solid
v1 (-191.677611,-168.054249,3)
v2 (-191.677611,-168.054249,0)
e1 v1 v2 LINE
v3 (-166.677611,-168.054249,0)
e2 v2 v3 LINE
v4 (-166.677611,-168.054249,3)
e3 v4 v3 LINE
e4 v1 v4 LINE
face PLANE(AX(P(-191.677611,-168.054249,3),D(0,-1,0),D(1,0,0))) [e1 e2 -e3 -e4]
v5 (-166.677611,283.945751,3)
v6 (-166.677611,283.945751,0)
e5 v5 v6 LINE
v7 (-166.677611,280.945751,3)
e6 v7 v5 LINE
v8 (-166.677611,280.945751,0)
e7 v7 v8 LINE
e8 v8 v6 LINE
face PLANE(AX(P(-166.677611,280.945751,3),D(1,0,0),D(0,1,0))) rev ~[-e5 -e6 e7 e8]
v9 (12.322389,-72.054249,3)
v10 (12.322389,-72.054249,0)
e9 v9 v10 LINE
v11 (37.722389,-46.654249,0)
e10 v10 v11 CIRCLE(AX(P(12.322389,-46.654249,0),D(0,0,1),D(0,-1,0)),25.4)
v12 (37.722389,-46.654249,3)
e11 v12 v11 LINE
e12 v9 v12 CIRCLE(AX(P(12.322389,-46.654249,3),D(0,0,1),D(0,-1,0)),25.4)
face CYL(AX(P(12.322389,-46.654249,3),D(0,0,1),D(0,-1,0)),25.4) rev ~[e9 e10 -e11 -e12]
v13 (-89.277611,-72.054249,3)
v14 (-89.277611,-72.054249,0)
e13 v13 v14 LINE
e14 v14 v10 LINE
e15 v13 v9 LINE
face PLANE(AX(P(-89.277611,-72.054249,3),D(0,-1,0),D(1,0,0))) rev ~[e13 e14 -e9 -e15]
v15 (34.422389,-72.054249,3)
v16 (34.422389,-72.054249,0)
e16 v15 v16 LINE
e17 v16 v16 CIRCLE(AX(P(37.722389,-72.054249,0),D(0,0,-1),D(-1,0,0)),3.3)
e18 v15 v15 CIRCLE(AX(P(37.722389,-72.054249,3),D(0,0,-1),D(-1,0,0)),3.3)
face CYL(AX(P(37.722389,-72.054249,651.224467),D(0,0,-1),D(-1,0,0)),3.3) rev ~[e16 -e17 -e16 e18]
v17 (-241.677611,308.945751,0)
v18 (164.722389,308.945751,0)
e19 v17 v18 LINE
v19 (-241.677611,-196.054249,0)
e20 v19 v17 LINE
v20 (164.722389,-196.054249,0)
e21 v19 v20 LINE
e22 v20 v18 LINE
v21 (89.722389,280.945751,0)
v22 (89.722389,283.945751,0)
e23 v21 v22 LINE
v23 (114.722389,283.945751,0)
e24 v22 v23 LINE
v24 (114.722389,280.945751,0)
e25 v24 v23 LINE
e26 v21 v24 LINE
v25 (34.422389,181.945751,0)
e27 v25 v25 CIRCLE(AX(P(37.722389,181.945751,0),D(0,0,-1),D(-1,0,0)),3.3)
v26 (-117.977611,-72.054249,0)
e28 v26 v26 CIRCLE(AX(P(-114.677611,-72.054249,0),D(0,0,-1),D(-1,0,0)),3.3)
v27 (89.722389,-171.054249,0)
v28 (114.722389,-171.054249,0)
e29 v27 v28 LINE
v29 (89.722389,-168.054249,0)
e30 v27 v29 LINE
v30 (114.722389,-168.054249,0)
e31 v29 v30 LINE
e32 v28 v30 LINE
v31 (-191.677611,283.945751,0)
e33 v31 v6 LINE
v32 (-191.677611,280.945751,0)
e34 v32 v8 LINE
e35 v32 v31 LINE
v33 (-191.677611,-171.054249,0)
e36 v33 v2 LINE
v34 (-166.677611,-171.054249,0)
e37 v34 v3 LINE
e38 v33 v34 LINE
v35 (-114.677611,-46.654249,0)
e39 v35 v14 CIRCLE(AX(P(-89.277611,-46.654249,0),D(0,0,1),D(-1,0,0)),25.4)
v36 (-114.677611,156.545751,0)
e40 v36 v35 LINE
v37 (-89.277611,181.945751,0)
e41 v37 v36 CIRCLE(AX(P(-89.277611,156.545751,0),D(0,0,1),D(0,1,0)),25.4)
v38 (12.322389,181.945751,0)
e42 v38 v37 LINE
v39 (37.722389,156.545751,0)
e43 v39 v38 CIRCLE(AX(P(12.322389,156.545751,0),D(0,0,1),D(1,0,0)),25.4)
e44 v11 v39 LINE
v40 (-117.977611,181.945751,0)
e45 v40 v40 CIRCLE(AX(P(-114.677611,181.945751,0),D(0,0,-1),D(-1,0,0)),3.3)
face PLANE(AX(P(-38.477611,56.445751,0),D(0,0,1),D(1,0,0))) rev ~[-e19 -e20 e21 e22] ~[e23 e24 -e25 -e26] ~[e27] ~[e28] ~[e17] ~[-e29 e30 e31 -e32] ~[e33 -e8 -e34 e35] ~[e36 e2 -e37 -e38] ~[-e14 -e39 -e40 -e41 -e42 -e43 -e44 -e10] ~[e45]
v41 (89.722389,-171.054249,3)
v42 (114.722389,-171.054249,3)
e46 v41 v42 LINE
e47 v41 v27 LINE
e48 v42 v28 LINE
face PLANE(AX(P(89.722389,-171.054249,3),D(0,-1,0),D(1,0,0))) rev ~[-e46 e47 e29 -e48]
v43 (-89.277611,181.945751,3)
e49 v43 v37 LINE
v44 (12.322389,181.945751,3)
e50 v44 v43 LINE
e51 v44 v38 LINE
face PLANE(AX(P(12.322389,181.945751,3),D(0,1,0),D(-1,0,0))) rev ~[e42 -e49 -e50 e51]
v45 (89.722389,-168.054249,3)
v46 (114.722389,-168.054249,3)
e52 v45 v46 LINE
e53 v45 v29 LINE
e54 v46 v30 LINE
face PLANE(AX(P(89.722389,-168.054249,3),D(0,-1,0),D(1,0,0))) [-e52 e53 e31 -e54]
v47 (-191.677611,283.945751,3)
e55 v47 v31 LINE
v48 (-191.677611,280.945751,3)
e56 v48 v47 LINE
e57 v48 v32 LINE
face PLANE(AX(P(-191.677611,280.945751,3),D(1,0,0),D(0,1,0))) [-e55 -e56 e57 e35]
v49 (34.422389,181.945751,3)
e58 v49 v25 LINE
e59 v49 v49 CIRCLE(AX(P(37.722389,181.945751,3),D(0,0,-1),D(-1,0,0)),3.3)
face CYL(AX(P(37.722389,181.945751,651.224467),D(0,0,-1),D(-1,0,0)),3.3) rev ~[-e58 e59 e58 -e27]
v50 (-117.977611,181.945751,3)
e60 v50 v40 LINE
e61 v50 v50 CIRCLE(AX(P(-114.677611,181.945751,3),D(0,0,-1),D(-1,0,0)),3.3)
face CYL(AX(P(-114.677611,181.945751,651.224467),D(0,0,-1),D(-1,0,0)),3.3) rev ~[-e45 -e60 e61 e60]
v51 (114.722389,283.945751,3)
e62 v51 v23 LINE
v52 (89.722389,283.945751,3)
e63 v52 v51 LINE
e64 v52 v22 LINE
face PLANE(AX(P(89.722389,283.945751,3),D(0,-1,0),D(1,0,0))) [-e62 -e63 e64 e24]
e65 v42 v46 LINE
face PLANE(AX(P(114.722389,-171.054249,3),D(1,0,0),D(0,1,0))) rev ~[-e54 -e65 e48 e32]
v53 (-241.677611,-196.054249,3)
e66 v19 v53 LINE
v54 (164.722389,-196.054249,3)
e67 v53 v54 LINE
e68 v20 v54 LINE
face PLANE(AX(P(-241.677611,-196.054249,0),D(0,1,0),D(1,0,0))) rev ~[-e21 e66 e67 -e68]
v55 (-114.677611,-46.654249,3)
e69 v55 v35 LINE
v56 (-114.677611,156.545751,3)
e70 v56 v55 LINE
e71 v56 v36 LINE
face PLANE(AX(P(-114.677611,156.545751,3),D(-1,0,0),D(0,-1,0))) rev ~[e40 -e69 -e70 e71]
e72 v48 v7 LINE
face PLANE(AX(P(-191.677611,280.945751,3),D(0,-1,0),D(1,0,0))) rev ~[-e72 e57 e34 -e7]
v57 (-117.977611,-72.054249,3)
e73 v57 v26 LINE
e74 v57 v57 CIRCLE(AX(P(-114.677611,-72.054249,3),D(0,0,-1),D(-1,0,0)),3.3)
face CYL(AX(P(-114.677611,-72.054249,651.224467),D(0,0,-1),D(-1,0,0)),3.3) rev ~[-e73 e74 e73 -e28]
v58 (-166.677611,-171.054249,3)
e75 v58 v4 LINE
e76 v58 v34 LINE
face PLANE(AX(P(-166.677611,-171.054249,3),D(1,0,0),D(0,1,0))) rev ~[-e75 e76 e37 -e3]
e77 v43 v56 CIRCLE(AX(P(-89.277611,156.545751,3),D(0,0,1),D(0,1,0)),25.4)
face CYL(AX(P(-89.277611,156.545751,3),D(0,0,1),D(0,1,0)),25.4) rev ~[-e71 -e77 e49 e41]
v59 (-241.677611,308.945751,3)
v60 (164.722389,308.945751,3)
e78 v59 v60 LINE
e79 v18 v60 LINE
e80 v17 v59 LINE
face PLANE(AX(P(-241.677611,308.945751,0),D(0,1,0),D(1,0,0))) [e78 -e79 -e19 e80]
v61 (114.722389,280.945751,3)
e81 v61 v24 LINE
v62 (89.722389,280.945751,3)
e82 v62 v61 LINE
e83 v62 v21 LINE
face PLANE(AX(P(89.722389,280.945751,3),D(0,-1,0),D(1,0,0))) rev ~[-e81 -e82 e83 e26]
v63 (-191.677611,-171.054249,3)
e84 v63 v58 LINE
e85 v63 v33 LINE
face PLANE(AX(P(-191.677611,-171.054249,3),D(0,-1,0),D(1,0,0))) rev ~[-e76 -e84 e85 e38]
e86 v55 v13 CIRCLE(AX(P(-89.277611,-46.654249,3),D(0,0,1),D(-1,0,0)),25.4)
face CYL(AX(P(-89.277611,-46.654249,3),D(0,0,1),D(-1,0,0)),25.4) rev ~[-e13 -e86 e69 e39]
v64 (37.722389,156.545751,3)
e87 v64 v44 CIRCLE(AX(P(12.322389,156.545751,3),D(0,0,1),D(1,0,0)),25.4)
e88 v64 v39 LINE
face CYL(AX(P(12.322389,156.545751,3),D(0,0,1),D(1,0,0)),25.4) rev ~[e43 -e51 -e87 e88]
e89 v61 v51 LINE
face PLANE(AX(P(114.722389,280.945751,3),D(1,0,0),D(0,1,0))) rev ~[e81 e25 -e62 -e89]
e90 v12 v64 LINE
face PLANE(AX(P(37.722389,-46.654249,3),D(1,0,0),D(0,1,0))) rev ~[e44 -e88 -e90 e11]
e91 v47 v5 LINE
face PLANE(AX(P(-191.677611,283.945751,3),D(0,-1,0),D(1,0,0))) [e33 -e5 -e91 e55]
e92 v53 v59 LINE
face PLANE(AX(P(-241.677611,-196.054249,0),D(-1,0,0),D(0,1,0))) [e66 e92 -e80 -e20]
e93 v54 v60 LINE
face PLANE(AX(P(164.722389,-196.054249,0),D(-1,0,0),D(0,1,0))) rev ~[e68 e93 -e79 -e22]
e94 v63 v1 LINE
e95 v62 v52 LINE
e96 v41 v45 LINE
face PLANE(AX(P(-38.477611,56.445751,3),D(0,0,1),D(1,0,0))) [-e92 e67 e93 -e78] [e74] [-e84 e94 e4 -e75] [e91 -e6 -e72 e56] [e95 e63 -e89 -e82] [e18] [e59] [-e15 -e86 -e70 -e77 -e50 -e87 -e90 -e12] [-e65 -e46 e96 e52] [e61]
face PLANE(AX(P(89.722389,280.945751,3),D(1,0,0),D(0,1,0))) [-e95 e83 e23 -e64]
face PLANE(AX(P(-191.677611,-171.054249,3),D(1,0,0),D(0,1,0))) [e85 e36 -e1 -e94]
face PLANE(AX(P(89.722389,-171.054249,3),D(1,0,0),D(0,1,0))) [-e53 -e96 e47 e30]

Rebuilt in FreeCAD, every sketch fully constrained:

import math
import FreeCAD as App
import Part
import Sketcher
from FreeCAD import Vector

doc = App.newDocument("Part")
params = doc.addObject("Spreadsheet::Sheet", "Params")
for row, (alias, value) in enumerate([
    ("sketch1_height", "505 mm"),
    ("sketch1_width", "406.4 mm"),
    ("pad1_length", "3 mm"),
    ("sketch2_diameter", "6.6 mm"),
    ("hole_diameter", "6.6 mm"),
    ("sketch3_radius", "25.4 mm"),
    ("sketch3_width", "101.6 mm"),
    ("sketch3_height", "203.2 mm"),
    ("pocket1_length", "25 mm"),
    ("sketch4_width", "25 mm"),
    ("sketch4_height", "3 mm"),
    ("pocket2_length", "25 mm"),
], start=1):
    params.set(f"A{row}", alias)
    params.set(f"B{row}", "=" + value)
    params.setAlias(f"B{row}", alias)

body = doc.addObject("PartDesign::Body", "Body")

sketch1 = body.newObject("Sketcher::SketchObject", "Sketch")
sketch1.AttachmentSupport = (doc.getObject("XY_Plane"), [""])
sketch1.MapMode = "FlatFace"
sketch1.addGeometry(Part.LineSegment(Vector(-242, 309, 0), Vector(-242, -196, 0)), False)
sketch1.addGeometry(Part.LineSegment(Vector(-242, -196, 0), Vector(165, -196, 0)), False)
sketch1.addGeometry(Part.LineSegment(Vector(165, -196, 0), Vector(165, 309, 0)), False)
sketch1.addGeometry(Part.LineSegment(Vector(165, 309, 0), Vector(-242, 309, 0)), False)
sketch1.addConstraint(Sketcher.Constraint("Coincident", 0, 2, 1, 1))
sketch1.addConstraint(Sketcher.Constraint("Coincident", 1, 2, 2, 1))
sketch1.addConstraint(Sketcher.Constraint("Coincident", 2, 2, 3, 1))
sketch1.addConstraint(Sketcher.Constraint("Coincident", 3, 2, 0, 1))
sketch1.addConstraint(Sketcher.Constraint("Vertical", 0))
sketch1.addConstraint(Sketcher.Constraint("Horizontal", 1))
sketch1.addConstraint(Sketcher.Constraint("Vertical", 2))
sketch1.addConstraint(Sketcher.Constraint("Horizontal", 3))
sketch1.addConstraint(Sketcher.Constraint("DistanceY", 0, 2, 0, 1, 505.0))
sketch1.addConstraint(Sketcher.Constraint("DistanceX", 1, 1, 1, 2, 406.4))
sketch1.addConstraint(Sketcher.Constraint("DistanceX", 0, 2, -1, 1, 241.677611))
sketch1.addConstraint(Sketcher.Constraint("DistanceY", 0, 2, -1, 1, 196.054249))
sketch1.setExpression("Constraints[8]", "Params.sketch1_height")
sketch1.setExpression("Constraints[9]", "Params.sketch1_width")
pad1 = body.newObject("PartDesign::Pad", "Pad")
pad1.Profile = sketch1
pad1.setExpression("Length", "Params.pad1_length")

sketch2 = body.newObject("Sketcher::SketchObject", "Sketch001")
sketch2.AttachmentSupport = (doc.getObject("XY_Plane"), [""])
sketch2.MapMode = "FlatFace"
sketch2.AttachmentOffset = App.Placement(Vector(0, 0, 3), App.Rotation())
sketch2.addGeometry(Part.Circle(Vector(-114.7, 181.9, 0), Vector(0, 0, 1), 3.3), False)
sketch2.addGeometry(Part.Circle(Vector(37.7, 181.9, 0), Vector(0, 0, 1), 3.3), False)
sketch2.addGeometry(Part.Circle(Vector(37.7, -72.1, 0), Vector(0, 0, 1), 3.3), False)
sketch2.addGeometry(Part.Circle(Vector(-114.7, -72.1, 0), Vector(0, 0, 1), 3.3), False)
sketch2.addConstraint(Sketcher.Constraint("Equal", 0, 1))
sketch2.addConstraint(Sketcher.Constraint("Equal", 1, 2))
sketch2.addConstraint(Sketcher.Constraint("Equal", 2, 3))
sketch2.addConstraint(Sketcher.Constraint("Horizontal", 0, 3, 1, 3))
sketch2.addConstraint(Sketcher.Constraint("Horizontal", 2, 3, 3, 3))
sketch2.addConstraint(Sketcher.Constraint("Vertical", 1, 3, 2, 3))
sketch2.addConstraint(Sketcher.Constraint("Vertical", 0, 3, 3, 3))
sketch2.addConstraint(Sketcher.Constraint("Diameter", 0, 6.6))
sketch2.addConstraint(Sketcher.Constraint("DistanceY", 2, 3, 1, 3, 254.0))
sketch2.addConstraint(Sketcher.Constraint("DistanceX", 0, 3, 1, 3, 152.4))
sketch2.addConstraint(Sketcher.Constraint("DistanceX", 0, 3, -1, 1, 114.677611))
sketch2.addConstraint(Sketcher.Constraint("DistanceY", -1, 1, 0, 3, 181.945751))
sketch2.setExpression("Constraints[7]", "Params.sketch2_diameter")
doc.recompute()
hole = body.newObject("PartDesign::Hole", "Hole")
hole.Profile = sketch2
hole.ThreadType = "None"
hole.setExpression("Diameter", "Params.hole_diameter")
hole.DepthType = "ThroughAll"

sketch3 = body.newObject("Sketcher::SketchObject", "Sketch002")
sketch3.AttachmentSupport = (doc.getObject("XY_Plane"), [""])
sketch3.MapMode = "FlatFace"
sketch3.AttachmentOffset = App.Placement(Vector(0, 0, 3), App.Rotation())
sketch3.addGeometry(Part.LineSegment(Vector(12, 182, 0), Vector(-89, 182, 0)), False)
sketch3.addGeometry(Part.ArcOfCircle(Part.Circle(Vector(-89, 157, 0), Vector(0, 0, 1), 25), math.radians(90), math.radians(180)), False)
sketch3.addGeometry(Part.LineSegment(Vector(-115, 157, 0), Vector(-115, -47, 0)), False)
sketch3.addGeometry(Part.ArcOfCircle(Part.Circle(Vector(-89, -47, 0), Vector(0, 0, 1), 25), math.radians(180), math.radians(270)), False)
sketch3.addGeometry(Part.LineSegment(Vector(-89, -72, 0), Vector(12, -72, 0)), False)
sketch3.addGeometry(Part.ArcOfCircle(Part.Circle(Vector(12, -47, 0), Vector(0, 0, 1), 25), math.radians(-90), math.radians(0)), False)
sketch3.addGeometry(Part.LineSegment(Vector(38, -47, 0), Vector(38, 157, 0)), False)
sketch3.addGeometry(Part.ArcOfCircle(Part.Circle(Vector(12, 157, 0), Vector(0, 0, 1), 25), math.radians(0), math.radians(90)), False)
sketch3.addConstraint(Sketcher.Constraint("Tangent", 0, 2, 1, 1))
sketch3.addConstraint(Sketcher.Constraint("Tangent", 1, 2, 2, 1))
sketch3.addConstraint(Sketcher.Constraint("Tangent", 2, 2, 3, 1))
sketch3.addConstraint(Sketcher.Constraint("Tangent", 3, 2, 4, 1))
sketch3.addConstraint(Sketcher.Constraint("Tangent", 4, 2, 5, 1))
sketch3.addConstraint(Sketcher.Constraint("Tangent", 5, 2, 6, 1))
sketch3.addConstraint(Sketcher.Constraint("Tangent", 6, 2, 7, 1))
sketch3.addConstraint(Sketcher.Constraint("Tangent", 7, 2, 0, 1))
sketch3.addConstraint(Sketcher.Constraint("Horizontal", 0))
sketch3.addConstraint(Sketcher.Constraint("Vertical", 2))
sketch3.addConstraint(Sketcher.Constraint("Horizontal", 4))
sketch3.addConstraint(Sketcher.Constraint("Vertical", 6))
sketch3.addConstraint(Sketcher.Constraint("Equal", 1, 3))
sketch3.addConstraint(Sketcher.Constraint("Equal", 3, 5))
sketch3.addConstraint(Sketcher.Constraint("Equal", 5, 7))
sketch3.addConstraint(Sketcher.Constraint("Radius", 1, 25.4))
sketch3.addConstraint(Sketcher.Constraint("DistanceX", 0, 2, 0, 1, 101.6))
sketch3.addConstraint(Sketcher.Constraint("DistanceY", 2, 2, 2, 1, 203.2))
sketch3.addConstraint(Sketcher.Constraint("DistanceX", 1, 3, -1, 1, 89.277611))
sketch3.addConstraint(Sketcher.Constraint("DistanceY", -1, 1, 1, 3, 156.545751))
sketch3.setExpression("Constraints[15]", "Params.sketch3_radius")
sketch3.setExpression("Constraints[16]", "Params.sketch3_width")
sketch3.setExpression("Constraints[17]", "Params.sketch3_height")
pocket1 = body.newObject("PartDesign::Pocket", "Pocket")
pocket1.Profile = sketch3
pocket1.setExpression("Length", "Params.pocket1_length")

sketch4 = body.newObject("Sketcher::SketchObject", "Sketch003")
sketch4.AttachmentSupport = (doc.getObject("XY_Plane"), [""])
sketch4.MapMode = "FlatFace"
sketch4.AttachmentOffset = App.Placement(Vector(0, 0, 3), App.Rotation())
sketch4.addGeometry(Part.LineSegment(Vector(-191.7, 283.9, 0), Vector(-191.7, 280.9, 0)), False)
sketch4.addGeometry(Part.LineSegment(Vector(-191.7, 280.9, 0), Vector(-166.7, 280.9, 0)), False)
sketch4.addGeometry(Part.LineSegment(Vector(-166.7, 280.9, 0), Vector(-166.7, 283.9, 0)), False)
sketch4.addGeometry(Part.LineSegment(Vector(-166.7, 283.9, 0), Vector(-191.7, 283.9, 0)), False)
sketch4.addGeometry(Part.LineSegment(Vector(89.7, 283.9, 0), Vector(89.7, 280.9, 0)), False)
sketch4.addGeometry(Part.LineSegment(Vector(89.7, 280.9, 0), Vector(114.7, 280.9, 0)), False)
sketch4.addGeometry(Part.LineSegment(Vector(114.7, 280.9, 0), Vector(114.7, 283.9, 0)), False)
sketch4.addGeometry(Part.LineSegment(Vector(114.7, 283.9, 0), Vector(89.7, 283.9, 0)), False)
sketch4.addGeometry(Part.LineSegment(Vector(89.7, -168.1, 0), Vector(89.7, -171.1, 0)), False)
sketch4.addGeometry(Part.LineSegment(Vector(89.7, -171.1, 0), Vector(114.7, -171.1, 0)), False)
sketch4.addGeometry(Part.LineSegment(Vector(114.7, -171.1, 0), Vector(114.7, -168.1, 0)), False)
sketch4.addGeometry(Part.LineSegment(Vector(114.7, -168.1, 0), Vector(89.7, -168.1, 0)), False)
sketch4.addGeometry(Part.LineSegment(Vector(-191.7, -168.1, 0), Vector(-191.7, -171.1, 0)), False)
sketch4.addGeometry(Part.LineSegment(Vector(-191.7, -171.1, 0), Vector(-166.7, -171.1, 0)), False)
sketch4.addGeometry(Part.LineSegment(Vector(-166.7, -171.1, 0), Vector(-166.7, -168.1, 0)), False)
sketch4.addGeometry(Part.LineSegment(Vector(-166.7, -168.1, 0), Vector(-191.7, -168.1, 0)), False)
sketch4.addConstraint(Sketcher.Constraint("Coincident", 0, 2, 1, 1))
sketch4.addConstraint(Sketcher.Constraint("Coincident", 1, 2, 2, 1))
sketch4.addConstraint(Sketcher.Constraint("Coincident", 2, 2, 3, 1))
sketch4.addConstraint(Sketcher.Constraint("Coincident", 3, 2, 0, 1))
sketch4.addConstraint(Sketcher.Constraint("Coincident", 4, 2, 5, 1))
sketch4.addConstraint(Sketcher.Constraint("Coincident", 5, 2, 6, 1))
sketch4.addConstraint(Sketcher.Constraint("Coincident", 6, 2, 7, 1))
sketch4.addConstraint(Sketcher.Constraint("Coincident", 7, 2, 4, 1))
sketch4.addConstraint(Sketcher.Constraint("Coincident", 8, 2, 9, 1))
sketch4.addConstraint(Sketcher.Constraint("Coincident", 9, 2, 10, 1))
sketch4.addConstraint(Sketcher.Constraint("Coincident", 10, 2, 11, 1))
sketch4.addConstraint(Sketcher.Constraint("Coincident", 11, 2, 8, 1))
sketch4.addConstraint(Sketcher.Constraint("Coincident", 12, 2, 13, 1))
sketch4.addConstraint(Sketcher.Constraint("Coincident", 13, 2, 14, 1))
sketch4.addConstraint(Sketcher.Constraint("Coincident", 14, 2, 15, 1))
sketch4.addConstraint(Sketcher.Constraint("Coincident", 15, 2, 12, 1))
sketch4.addConstraint(Sketcher.Constraint("Vertical", 0))
sketch4.addConstraint(Sketcher.Constraint("Horizontal", 1))
sketch4.addConstraint(Sketcher.Constraint("Vertical", 2))
sketch4.addConstraint(Sketcher.Constraint("Horizontal", 3))
sketch4.addConstraint(Sketcher.Constraint("Vertical", 4))
sketch4.addConstraint(Sketcher.Constraint("Horizontal", 5))
sketch4.addConstraint(Sketcher.Constraint("Vertical", 6))
sketch4.addConstraint(Sketcher.Constraint("Horizontal", 7))
sketch4.addConstraint(Sketcher.Constraint("Vertical", 8))
sketch4.addConstraint(Sketcher.Constraint("Horizontal", 9))
sketch4.addConstraint(Sketcher.Constraint("Vertical", 10))
sketch4.addConstraint(Sketcher.Constraint("Horizontal", 11))
sketch4.addConstraint(Sketcher.Constraint("Vertical", 12))
sketch4.addConstraint(Sketcher.Constraint("Horizontal", 13))
sketch4.addConstraint(Sketcher.Constraint("Vertical", 14))
sketch4.addConstraint(Sketcher.Constraint("Horizontal", 15))
sketch4.addConstraint(Sketcher.Constraint("Horizontal", 1, 2, 4, 2))
sketch4.addConstraint(Sketcher.Constraint("Horizontal", 3, 2, 6, 2))
sketch4.addConstraint(Sketcher.Constraint("Horizontal", 9, 2, 12, 2))
sketch4.addConstraint(Sketcher.Constraint("Horizontal", 11, 2, 14, 2))
sketch4.addConstraint(Sketcher.Constraint("Vertical", 7, 2, 8, 2))
sketch4.addConstraint(Sketcher.Constraint("Vertical", 6, 2, 9, 2))
sketch4.addConstraint(Sketcher.Constraint("Vertical", 3, 2, 12, 2))
sketch4.addConstraint(Sketcher.Constraint("Vertical", 2, 2, 13, 2))
sketch4.addConstraint(Sketcher.Constraint("Equal", 3, 5))
sketch4.addConstraint(Sketcher.Constraint("Equal", 6, 8))
sketch4.addConstraint(Sketcher.Constraint("DistanceX", 1, 1, 1, 2, 25.0))
sketch4.addConstraint(Sketcher.Constraint("DistanceY", 0, 2, 0, 1, 3.0))
sketch4.addConstraint(Sketcher.Constraint("DistanceY", 8, 2, 4, 2, 452.0))
sketch4.addConstraint(Sketcher.Constraint("DistanceX", 1, 2, 4, 2, 256.4))
sketch4.addConstraint(Sketcher.Constraint("DistanceX", 0, 2, -1, 1, 191.677611))
sketch4.addConstraint(Sketcher.Constraint("DistanceY", -1, 1, 0, 2, 280.945751))
sketch4.setExpression("Constraints[42]", "Params.sketch4_width")
sketch4.setExpression("Constraints[43]", "Params.sketch4_height")
pocket2 = body.newObject("PartDesign::Pocket", "Pocket001")
pocket2.Profile = sketch4
pocket2.setExpression("Length", "Params.pocket2_length")

doc.recompute()
